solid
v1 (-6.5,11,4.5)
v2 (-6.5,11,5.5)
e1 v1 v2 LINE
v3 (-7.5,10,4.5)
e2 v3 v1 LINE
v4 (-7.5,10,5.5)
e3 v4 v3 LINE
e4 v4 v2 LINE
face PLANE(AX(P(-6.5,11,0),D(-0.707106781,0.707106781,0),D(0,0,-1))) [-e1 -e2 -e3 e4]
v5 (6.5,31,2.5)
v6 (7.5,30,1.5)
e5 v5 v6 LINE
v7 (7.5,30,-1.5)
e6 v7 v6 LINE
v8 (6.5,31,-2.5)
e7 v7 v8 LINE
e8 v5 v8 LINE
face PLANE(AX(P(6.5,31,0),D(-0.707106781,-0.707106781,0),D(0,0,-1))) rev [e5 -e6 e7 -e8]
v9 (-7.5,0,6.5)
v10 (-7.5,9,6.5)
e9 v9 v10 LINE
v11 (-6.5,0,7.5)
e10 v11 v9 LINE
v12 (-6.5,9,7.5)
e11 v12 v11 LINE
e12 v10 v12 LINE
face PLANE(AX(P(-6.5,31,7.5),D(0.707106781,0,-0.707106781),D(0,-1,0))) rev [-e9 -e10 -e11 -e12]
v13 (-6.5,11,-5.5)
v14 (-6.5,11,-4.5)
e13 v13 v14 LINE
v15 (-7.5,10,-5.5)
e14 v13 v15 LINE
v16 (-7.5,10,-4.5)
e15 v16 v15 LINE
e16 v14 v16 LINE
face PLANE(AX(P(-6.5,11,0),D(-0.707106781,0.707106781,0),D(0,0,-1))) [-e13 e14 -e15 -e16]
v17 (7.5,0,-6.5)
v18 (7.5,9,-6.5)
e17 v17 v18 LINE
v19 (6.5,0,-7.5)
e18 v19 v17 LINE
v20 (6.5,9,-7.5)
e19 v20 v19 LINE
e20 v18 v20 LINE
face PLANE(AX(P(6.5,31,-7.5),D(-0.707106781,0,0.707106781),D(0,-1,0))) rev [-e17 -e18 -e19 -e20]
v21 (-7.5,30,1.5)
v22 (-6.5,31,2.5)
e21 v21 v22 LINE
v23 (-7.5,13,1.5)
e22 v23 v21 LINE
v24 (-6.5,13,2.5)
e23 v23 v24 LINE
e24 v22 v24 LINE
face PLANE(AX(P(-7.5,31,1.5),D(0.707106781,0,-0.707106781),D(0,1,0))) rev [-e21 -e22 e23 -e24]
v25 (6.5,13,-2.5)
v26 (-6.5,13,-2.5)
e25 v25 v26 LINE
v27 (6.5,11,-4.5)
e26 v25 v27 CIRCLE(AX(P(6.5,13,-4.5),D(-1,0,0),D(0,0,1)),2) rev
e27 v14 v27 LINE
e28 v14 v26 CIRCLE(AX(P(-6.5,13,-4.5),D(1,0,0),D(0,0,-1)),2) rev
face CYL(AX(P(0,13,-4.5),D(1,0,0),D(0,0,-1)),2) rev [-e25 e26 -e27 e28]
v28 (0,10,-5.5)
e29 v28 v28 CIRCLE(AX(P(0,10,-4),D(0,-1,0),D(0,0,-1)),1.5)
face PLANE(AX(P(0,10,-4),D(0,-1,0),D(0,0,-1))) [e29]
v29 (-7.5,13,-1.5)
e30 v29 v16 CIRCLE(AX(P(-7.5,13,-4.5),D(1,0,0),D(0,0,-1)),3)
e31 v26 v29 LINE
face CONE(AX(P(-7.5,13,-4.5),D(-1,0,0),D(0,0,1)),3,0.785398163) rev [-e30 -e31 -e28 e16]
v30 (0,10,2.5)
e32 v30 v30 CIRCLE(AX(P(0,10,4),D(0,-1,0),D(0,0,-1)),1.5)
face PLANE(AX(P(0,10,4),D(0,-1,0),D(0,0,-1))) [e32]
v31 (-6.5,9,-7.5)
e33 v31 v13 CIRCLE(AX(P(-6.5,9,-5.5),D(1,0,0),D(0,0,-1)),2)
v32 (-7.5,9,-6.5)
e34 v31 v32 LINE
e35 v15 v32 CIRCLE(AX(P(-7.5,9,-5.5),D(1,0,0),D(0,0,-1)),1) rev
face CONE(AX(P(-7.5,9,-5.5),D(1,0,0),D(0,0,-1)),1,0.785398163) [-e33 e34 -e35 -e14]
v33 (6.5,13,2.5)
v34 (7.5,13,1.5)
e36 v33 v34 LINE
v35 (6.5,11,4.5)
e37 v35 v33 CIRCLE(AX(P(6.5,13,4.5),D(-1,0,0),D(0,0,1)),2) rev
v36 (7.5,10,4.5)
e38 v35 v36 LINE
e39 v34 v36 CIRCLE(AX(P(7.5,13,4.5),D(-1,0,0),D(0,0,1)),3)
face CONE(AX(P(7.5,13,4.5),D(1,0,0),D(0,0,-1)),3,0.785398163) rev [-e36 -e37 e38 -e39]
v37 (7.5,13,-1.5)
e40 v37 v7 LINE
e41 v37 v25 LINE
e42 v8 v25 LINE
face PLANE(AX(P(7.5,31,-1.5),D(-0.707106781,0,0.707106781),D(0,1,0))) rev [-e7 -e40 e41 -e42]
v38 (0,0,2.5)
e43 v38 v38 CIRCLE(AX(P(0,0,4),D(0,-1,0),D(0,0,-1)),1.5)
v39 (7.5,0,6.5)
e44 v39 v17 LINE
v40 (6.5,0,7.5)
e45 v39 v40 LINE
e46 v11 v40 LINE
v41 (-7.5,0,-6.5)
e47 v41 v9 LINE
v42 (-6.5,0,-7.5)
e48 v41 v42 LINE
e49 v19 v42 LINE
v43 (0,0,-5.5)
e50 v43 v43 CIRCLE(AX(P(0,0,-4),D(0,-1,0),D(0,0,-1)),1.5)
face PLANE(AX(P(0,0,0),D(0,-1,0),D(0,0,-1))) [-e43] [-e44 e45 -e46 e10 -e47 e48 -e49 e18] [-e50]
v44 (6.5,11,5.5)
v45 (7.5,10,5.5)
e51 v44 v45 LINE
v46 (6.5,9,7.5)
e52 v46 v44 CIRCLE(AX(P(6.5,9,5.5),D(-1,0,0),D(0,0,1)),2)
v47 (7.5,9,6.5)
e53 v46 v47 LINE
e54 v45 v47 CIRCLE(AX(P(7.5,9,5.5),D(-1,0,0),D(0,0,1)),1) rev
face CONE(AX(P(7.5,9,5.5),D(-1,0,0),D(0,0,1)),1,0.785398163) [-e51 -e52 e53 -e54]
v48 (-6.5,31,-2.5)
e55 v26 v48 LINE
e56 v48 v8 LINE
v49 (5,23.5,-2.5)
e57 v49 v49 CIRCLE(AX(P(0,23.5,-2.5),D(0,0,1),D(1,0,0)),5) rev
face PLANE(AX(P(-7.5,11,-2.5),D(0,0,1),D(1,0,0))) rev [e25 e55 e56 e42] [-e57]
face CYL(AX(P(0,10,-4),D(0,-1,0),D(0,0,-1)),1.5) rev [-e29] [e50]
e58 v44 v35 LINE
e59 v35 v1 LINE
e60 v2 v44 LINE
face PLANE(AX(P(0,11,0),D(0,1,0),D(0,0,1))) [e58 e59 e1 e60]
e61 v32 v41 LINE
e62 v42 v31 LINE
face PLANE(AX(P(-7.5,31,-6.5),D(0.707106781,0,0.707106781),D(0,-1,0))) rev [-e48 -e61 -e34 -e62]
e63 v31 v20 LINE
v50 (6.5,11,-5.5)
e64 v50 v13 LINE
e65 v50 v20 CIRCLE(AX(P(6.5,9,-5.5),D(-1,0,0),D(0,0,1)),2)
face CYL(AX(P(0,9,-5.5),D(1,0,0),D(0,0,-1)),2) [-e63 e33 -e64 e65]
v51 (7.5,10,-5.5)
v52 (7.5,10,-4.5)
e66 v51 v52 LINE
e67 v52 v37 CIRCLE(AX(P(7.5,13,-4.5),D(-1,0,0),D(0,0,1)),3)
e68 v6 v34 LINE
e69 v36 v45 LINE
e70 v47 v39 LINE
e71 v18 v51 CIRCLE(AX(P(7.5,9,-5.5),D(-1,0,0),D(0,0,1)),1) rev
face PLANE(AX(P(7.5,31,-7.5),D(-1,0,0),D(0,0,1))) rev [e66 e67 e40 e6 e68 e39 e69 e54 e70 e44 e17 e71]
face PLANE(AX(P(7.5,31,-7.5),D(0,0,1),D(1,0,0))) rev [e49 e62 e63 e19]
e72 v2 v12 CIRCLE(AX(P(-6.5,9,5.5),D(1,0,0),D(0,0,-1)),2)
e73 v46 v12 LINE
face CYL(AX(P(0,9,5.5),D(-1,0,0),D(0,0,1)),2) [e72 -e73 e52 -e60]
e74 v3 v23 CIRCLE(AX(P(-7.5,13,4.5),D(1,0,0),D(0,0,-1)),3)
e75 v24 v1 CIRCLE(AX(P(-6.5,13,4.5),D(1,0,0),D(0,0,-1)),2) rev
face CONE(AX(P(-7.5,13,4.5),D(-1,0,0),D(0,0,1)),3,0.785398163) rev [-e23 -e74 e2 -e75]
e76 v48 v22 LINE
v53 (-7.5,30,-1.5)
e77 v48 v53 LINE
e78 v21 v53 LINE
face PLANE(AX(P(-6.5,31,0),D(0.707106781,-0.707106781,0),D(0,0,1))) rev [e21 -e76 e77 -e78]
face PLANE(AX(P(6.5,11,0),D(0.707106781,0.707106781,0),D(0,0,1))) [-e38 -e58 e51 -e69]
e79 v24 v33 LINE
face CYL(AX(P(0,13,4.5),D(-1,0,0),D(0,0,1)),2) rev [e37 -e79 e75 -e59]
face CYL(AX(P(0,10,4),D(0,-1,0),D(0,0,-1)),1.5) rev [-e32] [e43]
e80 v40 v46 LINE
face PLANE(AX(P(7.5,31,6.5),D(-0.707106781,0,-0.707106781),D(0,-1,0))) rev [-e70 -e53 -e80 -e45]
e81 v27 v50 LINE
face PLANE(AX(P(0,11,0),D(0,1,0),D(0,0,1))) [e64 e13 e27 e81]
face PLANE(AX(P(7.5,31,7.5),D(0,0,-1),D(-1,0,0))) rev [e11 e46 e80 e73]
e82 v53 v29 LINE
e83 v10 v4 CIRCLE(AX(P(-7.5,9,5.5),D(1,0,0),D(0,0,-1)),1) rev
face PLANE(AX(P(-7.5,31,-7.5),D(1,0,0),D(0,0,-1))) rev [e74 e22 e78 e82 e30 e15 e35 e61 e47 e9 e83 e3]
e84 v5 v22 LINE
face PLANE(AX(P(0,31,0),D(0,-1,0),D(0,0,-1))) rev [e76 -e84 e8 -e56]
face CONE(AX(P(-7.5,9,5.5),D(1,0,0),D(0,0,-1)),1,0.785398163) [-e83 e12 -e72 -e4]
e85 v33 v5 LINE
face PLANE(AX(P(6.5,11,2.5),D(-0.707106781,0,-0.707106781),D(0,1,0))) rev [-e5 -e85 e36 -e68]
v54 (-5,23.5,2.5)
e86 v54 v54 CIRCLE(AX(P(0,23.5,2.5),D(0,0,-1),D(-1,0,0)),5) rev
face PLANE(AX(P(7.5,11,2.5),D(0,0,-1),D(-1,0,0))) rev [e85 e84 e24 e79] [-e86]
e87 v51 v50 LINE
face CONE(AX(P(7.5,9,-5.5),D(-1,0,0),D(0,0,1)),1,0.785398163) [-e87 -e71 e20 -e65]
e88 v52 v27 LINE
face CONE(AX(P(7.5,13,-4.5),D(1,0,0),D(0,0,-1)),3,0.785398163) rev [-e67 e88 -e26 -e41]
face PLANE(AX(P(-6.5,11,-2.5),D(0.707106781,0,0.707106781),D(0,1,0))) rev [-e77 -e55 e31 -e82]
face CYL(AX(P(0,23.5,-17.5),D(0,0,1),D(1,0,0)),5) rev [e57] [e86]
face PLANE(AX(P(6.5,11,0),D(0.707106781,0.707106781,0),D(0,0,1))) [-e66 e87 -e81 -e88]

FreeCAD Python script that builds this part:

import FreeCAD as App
import Part
import Sketcher
from FreeCAD import Vector


def edges_at(feature, points):
    """Names of the edges that pass closest to the given points."""
    edges = feature.Shape.Edges
    near = lambda p: min(range(len(edges)), key=lambda i: edges[i].distToShape(Part.Vertex(*p))[0])
    return sorted({f"Edge{near(p) + 1}" for p in points})

doc = App.newDocument("Part")
params = doc.addObject("Spreadsheet::Sheet", "Params")
for row, (alias, value) in enumerate([
    ("sketch1_width", "15 mm"),
    ("pad1_length", "31 mm"),
    ("sketch2_diameter", "10 mm"),
    ("pocket1_length", "25 mm"),
    ("sketch3_width", "15 mm"),
    ("sketch3_height", "5 mm"),
    ("pocket2_length", "20 mm"),
    ("fillet_radius", "2 mm"),
    ("chamfer_size", "1 mm"),
    ("sketch4_diameter", "3 mm"),
    ("pocket3_length", "10 mm"),
], start=1):
    params.set(f"A{row}", alias)
    params.set(f"B{row}", "=" + value)
    params.setAlias(f"B{row}", alias)

body = doc.addObject("PartDesign::Body", "Body")

# Sketch on XZ plane
sketch1 = doc.addObject("Sketcher::SketchObject", "Sketch")
body.addObject(sketch1)
sketch1.AttachmentSupport = (doc.XZ_Plane, [""])
sketch1.MapMode = "FlatFace"
sketch1.addGeometry([
    Part.LineSegment(Vector(-8, -8, 0), Vector(-8, 8, 0)),
    Part.LineSegment(Vector(-8, 8, 0), Vector(8, 8, 0)),
    Part.LineSegment(Vector(8, 8, 0), Vector(8, -8, 0)),
    Part.LineSegment(Vector(8, -8, 0), Vector(-8, -8, 0)),
], False)
sketch1.addConstraint([
    Sketcher.Constraint("Coincident", 0, 2, 1, 1),
    Sketcher.Constraint("Coincident", 1, 2, 2, 1),
    Sketcher.Constraint("Coincident", 2, 2, 3, 1),
    Sketcher.Constraint("Coincident", 3, 2, 0, 1),
    Sketcher.Constraint("Vertical", 0),
    Sketcher.Constraint("Horizontal", 1),
    Sketcher.Constraint("Vertical", 2),
    Sketcher.Constraint("Horizontal", 3),
    Sketcher.Constraint("Symmetric", 0, 2, 2, 2, -1, 1),
    Sketcher.Constraint("Equal", 3, 0),
    Sketcher.Constraint("DistanceX", 1, 1, 1, 2, 15.0),
])
sketch1.setExpression("Constraints[10]", "Params.sketch1_width")
pad1 = doc.addObject("PartDesign::Pad", "Pad")
body.addObject(pad1)
pad1.Profile = sketch1
pad1.setExpression("Length", "Params.pad1_length")
pad1.Reversed = True

# Sketch on XY plane
sketch2 = doc.addObject("Sketcher::SketchObject", "Sketch001")
body.addObject(sketch2)
sketch2.AttachmentSupport = (doc.XY_Plane, [""])
sketch2.MapMode = "FlatFace"
sketch2.AttachmentOffset = App.Placement(Vector(0, 0, 7.5), App.Rotation())
sketch2.addGeometry(Part.Circle(Vector(0, 24, 0), Vector(0, 0, 1), 5), False)
sketch2.addConstraint([
    Sketcher.Constraint("PointOnObject", 0, 3, -2),
    Sketcher.Constraint("Diameter", 0, 10.0),
    Sketcher.Constraint("DistanceY", -1, 1, 0, 3, 23.5),
])
sketch2.setExpression("Constraints[1]", "Params.sketch2_diameter")
pocket1 = doc.addObject("PartDesign::Pocket", "Pocket")
body.addObject(pocket1)
pocket1.Profile = sketch2
pocket1.setExpression("Length", "Params.pocket1_length")

# Sketch on XZ plane
sketch3 = doc.addObject("Sketcher::SketchObject", "Sketch002")
body.addObject(sketch3)
sketch3.AttachmentSupport = (doc.XZ_Plane, [""])
sketch3.MapMode = "FlatFace"
sketch3.AttachmentOffset = App.Placement(Vector(0, 0, -31), App.Rotation())
sketch3.addGeometry([
    Part.LineSegment(Vector(-8, -8, 0), Vector(-8, -2, 0)),  # 0
    Part.LineSegment(Vector(-8, -2, 0), Vector(8, -2, 0)),  # 1
    Part.LineSegment(Vector(8, -2, 0), Vector(8, -8, 0)),  # 2
    Part.LineSegment(Vector(8, -8, 0), Vector(-8, -8, 0)),  # 3
    Part.LineSegment(Vector(-8, 2, 0), Vector(-8, 8, 0)),  # 4
    Part.LineSegment(Vector(-8, 8, 0), Vector(8, 8, 0)),  # 5
    Part.LineSegment(Vector(8, 8, 0), Vector(8, 2, 0)),  # 6
    Part.LineSegment(Vector(8, 2, 0), Vector(-8, 2, 0)),  # 7
], False)
sketch3.addConstraint([
    Sketcher.Constraint("Coincident", 0, 2, 1, 1),
    Sketcher.Constraint("Coincident", 1, 2, 2, 1),
    Sketcher.Constraint("Coincident", 2, 2, 3, 1),
    Sketcher.Constraint("Coincident", 3, 2, 0, 1),
    Sketcher.Constraint("Coincident", 4, 2, 5, 1),
    Sketcher.Constraint("Coincident", 5, 2, 6, 1),
    Sketcher.Constraint("Coincident", 6, 2, 7, 1),
    Sketcher.Constraint("Coincident", 7, 2, 4, 1),
    Sketcher.Constraint("Vertical", 0),
    Sketcher.Constraint("Horizontal", 1),
    Sketcher.Constraint("Vertical", 2),
    Sketcher.Constraint("Horizontal", 3),
    Sketcher.Constraint("Vertical", 4),
    Sketcher.Constraint("Horizontal", 5),
    Sketcher.Constraint("Vertical", 6),
    Sketcher.Constraint("Horizontal", 7),
    Sketcher.Constraint("Symmetric", 2, 2, 4, 2, -1, 1),
    Sketcher.Constraint("Symmetric", 0, 2, 6, 2, -1, 1),
    Sketcher.Constraint("Vertical", 3, 2, 4, 2),
    Sketcher.Constraint("DistanceX", 1, 1, 1, 2, 15.0),
    Sketcher.Constraint("DistanceY", 0, 1, 0, 2, 5.0),
    Sketcher.Constraint("DistanceY", 0, 2, 4, 2, 10.0),
])
sketch3.setExpression("Constraints[19]", "Params.sketch3_width")
sketch3.setExpression("Constraints[20]", "Params.sketch3_height")
pocket2 = doc.addObject("PartDesign::Pocket", "Pocket001")
body.addObject(pocket2)
pocket2.Profile = sketch3
pocket2.setExpression("Length", "Params.pocket2_length")
pocket2.Reversed = True
doc.recompute()

fillet = doc.addObject("PartDesign::Fillet", "Fillet")
body.addObject(fillet)
fillet.Base = (pocket2, edges_at(pocket2, [
    (0, 11, -7.5),
    (0, 11, -2.5),
    (0, 11, 7.5),
    (0, 11, 2.5),
]))
fillet.setExpression("Radius", "Params.fillet_radius")
doc.recompute()

chamfer = doc.addObject("PartDesign::Chamfer", "Chamfer")
body.addObject(chamfer)
chamfer.Base = (fillet, edges_at(fillet, [
    (-7.5, 31, 0),
    (7.5, 31, 0),
    (7.5, 11, 5),
    (-7.5, 11, 5),
    (7.5, 11, -5),
    (7.5, 22, -2.5),
    (7.5, 22, 2.5),
    (7.5, 4.5, 7.5),
    (7.5, 4.5, -7.5),
    (7.5, 10.414, -6.914),
    (7.5, 10.414, 6.914),
    (-7.5, 4.5, 7.5),
    (-7.5, 11, -5),
    (-7.5, 4.5, -7.5),
    (-7.5, 22, 2.5),
    (-7.5, 22, -2.5),
    (-7.5, 10.414, -6.914),
    (-7.5, 10.414, 6.914),
    (7.5, 11.586, -3.086),
    (-7.5, 11.586, -3.086),
    (-7.5, 11.586, 3.086),
    (7.5, 11.586, 3.086),
]))
chamfer.setExpression("Size", "Params.chamfer_size")

# Sketch on XZ plane
sketch4 = doc.addObject("Sketcher::SketchObject", "Sketch003")
body.addObject(sketch4)
sketch4.AttachmentSupport = (doc.XZ_Plane, [""])
sketch4.MapMode = "FlatFace"
sketch4.addGeometry([
    Part.Circle(Vector(0, 4, 0), Vector(0, 0, 1), 1.5),
    Part.Circle(Vector(0, -4, 0), Vector(0, 0, 1), 1.5),
], False)
sketch4.addConstraint([
    Sketcher.Constraint("Equal", 0, 1),
    Sketcher.Constraint("Symmetric", 0, 3, 1, 3, -1, 1),
    Sketcher.Constraint("PointOnObject", 0, 3, -2),
    Sketcher.Constraint("Diameter", 0, 3.0),
    Sketcher.Constraint("DistanceY", -1, 1, 0, 3, 4.0),
])
sketch4.setExpression("Constraints[3]", "Params.sketch4_diameter")
pocket3 = doc.addObject("PartDesign::Pocket", "Pocket002")
body.addObject(pocket3)
pocket3.Profile = sketch4
pocket3.setExpression("Length", "Params.pocket3_length")

doc.recompute()
